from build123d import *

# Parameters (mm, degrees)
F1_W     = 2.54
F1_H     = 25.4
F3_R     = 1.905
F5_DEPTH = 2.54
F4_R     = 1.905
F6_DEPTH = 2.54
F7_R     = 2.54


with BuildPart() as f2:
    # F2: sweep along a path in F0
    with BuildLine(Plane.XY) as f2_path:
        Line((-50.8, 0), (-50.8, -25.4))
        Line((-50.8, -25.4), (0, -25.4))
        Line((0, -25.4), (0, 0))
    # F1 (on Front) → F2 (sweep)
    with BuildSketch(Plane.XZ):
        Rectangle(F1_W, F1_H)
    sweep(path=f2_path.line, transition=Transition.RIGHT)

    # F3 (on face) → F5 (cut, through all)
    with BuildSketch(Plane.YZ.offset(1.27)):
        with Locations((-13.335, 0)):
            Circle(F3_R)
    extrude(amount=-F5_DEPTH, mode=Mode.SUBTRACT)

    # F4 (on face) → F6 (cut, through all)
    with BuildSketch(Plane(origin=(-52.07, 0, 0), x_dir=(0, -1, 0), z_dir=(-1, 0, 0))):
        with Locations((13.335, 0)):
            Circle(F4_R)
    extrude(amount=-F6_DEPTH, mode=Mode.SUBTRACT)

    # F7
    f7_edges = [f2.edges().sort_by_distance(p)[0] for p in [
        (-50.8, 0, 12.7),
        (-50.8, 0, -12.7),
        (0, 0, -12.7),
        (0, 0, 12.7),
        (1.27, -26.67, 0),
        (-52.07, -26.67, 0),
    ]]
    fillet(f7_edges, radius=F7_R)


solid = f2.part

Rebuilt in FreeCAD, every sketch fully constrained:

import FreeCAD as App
import Part
import Sketcher
from FreeCAD import Vector
Q = App.Units.Quantity


def edges_at(feature, points):
    """Names of the edges that pass closest to the given points."""
    edges = feature.Shape.Edges
    near = lambda p: min(range(len(edges)), key=lambda i: edges[i].distToShape(Part.Vertex(*p))[0])
    return sorted({f"Edge{near(p) + 1}" for p in points})

doc = App.newDocument("Part")
body = doc.addObject("PartDesign::Body", "Body")

sketch1 = doc.addObject("Sketcher::SketchObject", "Sketch")
body.addObject(sketch1)
sketch1.AttachmentSupport = (doc.XZ_Plane, [""])
sketch1.MapMode = "FlatFace"
sketch1.addGeometry([
    Part.LineSegment(Vector(-1.3, 12.7, 0), Vector(-1.3, -12.7, 0)),
    Part.LineSegment(Vector(-1.3, -12.7, 0), Vector(1.3, -12.7, 0)),
    Part.LineSegment(Vector(1.3, -12.7, 0), Vector(1.3, 12.7, 0)),
    Part.LineSegment(Vector(1.3, 12.7, 0), Vector(-1.3, 12.7, 0)),
], False)
sketch1.addConstraint([
    Sketcher.Constraint("Coincident", 0, 2, 1, 1),
    Sketcher.Constraint("Coincident", 1, 2, 2, 1),
    Sketcher.Constraint("Coincident", 2, 2, 3, 1),
    Sketcher.Constraint("Coincident", 3, 2, 0, 1),
    Sketcher.Constraint("Vertical", 0),
    Sketcher.Constraint("Horizontal", 1),
    Sketcher.Constraint("Vertical", 2),
    Sketcher.Constraint("Horizontal", 3),
    Sketcher.Constraint("Symmetric", 0, 2, 2, 2, -1, 1),
    Sketcher.Constraint("DistanceY", 0, 2, 0, 1, Q("1 in")),
    Sketcher.Constraint("DistanceX", 1, 1, 1, 2, Q("0.1 in")),
])

sketch2 = doc.addObject("Sketcher::SketchObject", "Sketch001")
body.addObject(sketch2)
sketch2.AttachmentSupport = (doc.XY_Plane, [""])
sketch2.MapMode = "FlatFace"
sketch2.addGeometry([
    Part.LineSegment(Vector(-51, 0, 0), Vector(-51, -25, 0)),
    Part.LineSegment(Vector(-51, -25, 0), Vector(0, -25, 0)),
    Part.LineSegment(Vector(0, -25, 0), Vector(0, 0, 0)),
], False)
sketch2.addConstraint([
    Sketcher.Constraint("Coincident", 0, 2, 1, 1),
    Sketcher.Constraint("Coincident", 1, 2, 2, 1),
    Sketcher.Constraint("Vertical", 0),
    Sketcher.Constraint("Horizontal", 1),
    Sketcher.Constraint("Vertical", 2),
    Sketcher.Constraint("Coincident", 2, 2, -1, 1),
    Sketcher.Constraint("PointOnObject", 0, 1, -1),
    Sketcher.Constraint("DistanceX", 1, 1, 1, 2, Q("2 in")),
    Sketcher.Constraint("DistanceY", 0, 2, 0, 1, Q("1 in")),
])
doc.recompute()

additivepipe = doc.addObject("PartDesign::AdditivePipe", "AdditivePipe")
body.addObject(additivepipe)
additivepipe.Profile = sketch1
additivepipe.Spine = (sketch2, ["Edge1", "Edge2", "Edge3"])
additivepipe.Transition = "Right corner"

sketch3 = doc.addObject("Sketcher::SketchObject", "Sketch002")
body.addObject(sketch3)
sketch3.AttachmentSupport = (doc.YZ_Plane, [""])
sketch3.MapMode = "FlatFace"
sketch3.AttachmentOffset = App.Placement(Vector(0, 0, 0.05 * 25.4), App.Rotation())
sketch3.addGeometry(Part.Circle(Vector(-13.3, 0, 0), Vector(0, 0, 1), 1.9), False)
sketch3.addConstraint([
    Sketcher.Constraint("PointOnObject", 0, 3, -1),
    Sketcher.Constraint("Diameter", 0, Q("0.15 in")),
    Sketcher.Constraint("DistanceX", 0, 3, -1, 1, Q("0.525 in")),
])
pocket1 = doc.addObject("PartDesign::Pocket", "Pocket")
body.addObject(pocket1)
pocket1.Profile = sketch3
pocket1.Length = Q("0.1 in")

sketch4 = doc.addObject("Sketcher::SketchObject", "Sketch003")
body.addObject(sketch4)
sketch4.AttachmentSupport = (doc.YZ_Plane, [""])
sketch4.MapMode = "FlatFace"
sketch4.AttachmentOffset = App.Placement(Vector(0, 0, -2.05 * 25.4), App.Rotation())
sketch4.addGeometry(Part.Circle(Vector(-13.3, 0, 0), Vector(0, 0, 1), 1.9), False)
sketch4.addConstraint([
    Sketcher.Constraint("PointOnObject", 0, 3, -1),
    Sketcher.Constraint("Diameter", 0, Q("0.15 in")),
    Sketcher.Constraint("DistanceX", 0, 3, -1, 1, Q("0.525 in")),
])
pocket2 = doc.addObject("PartDesign::Pocket", "Pocket001")
body.addObject(pocket2)
pocket2.Profile = sketch4
pocket2.Type = "ThroughAll"
pocket2.Reversed = True
doc.recompute()

fillet = doc.addObject("PartDesign::Fillet", "Fillet")
body.addObject(fillet)
fillet.Base = (pocket2, edges_at(pocket2, [
    (-50.8, 0, 12.7),
    (-50.8, 0, -12.7),
    (0, 0, -12.7),
    (0, 0, 12.7),
    (1.27, -26.67, 0),
    (-52.07, -26.67, 0),
]))
fillet.Radius = Q("0.1 in")

doc.recompute()
